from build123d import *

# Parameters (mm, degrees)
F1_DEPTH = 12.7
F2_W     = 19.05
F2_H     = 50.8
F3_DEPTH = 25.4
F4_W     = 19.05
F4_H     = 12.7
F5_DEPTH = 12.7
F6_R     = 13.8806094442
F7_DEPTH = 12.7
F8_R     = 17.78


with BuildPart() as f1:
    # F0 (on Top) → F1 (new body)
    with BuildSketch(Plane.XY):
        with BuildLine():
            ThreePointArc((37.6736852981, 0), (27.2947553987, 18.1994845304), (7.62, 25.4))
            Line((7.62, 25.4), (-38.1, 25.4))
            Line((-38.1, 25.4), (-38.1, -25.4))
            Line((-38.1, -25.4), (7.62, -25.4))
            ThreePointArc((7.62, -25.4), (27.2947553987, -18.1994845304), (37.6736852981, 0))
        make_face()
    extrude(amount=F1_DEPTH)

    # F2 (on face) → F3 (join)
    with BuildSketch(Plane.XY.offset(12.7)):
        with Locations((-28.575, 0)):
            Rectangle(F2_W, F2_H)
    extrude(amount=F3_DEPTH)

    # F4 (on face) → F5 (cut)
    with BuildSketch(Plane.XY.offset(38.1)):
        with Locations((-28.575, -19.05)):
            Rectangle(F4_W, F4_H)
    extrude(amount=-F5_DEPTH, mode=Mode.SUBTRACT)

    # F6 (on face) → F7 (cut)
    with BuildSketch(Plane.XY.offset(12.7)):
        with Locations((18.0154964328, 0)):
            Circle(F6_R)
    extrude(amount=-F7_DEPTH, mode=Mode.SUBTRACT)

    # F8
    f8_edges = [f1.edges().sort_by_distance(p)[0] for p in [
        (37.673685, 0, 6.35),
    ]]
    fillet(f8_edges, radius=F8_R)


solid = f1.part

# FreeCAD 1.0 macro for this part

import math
import FreeCAD as App
import Part
import Sketcher
from FreeCAD import Vector
Q = App.Units.Quantity


def edges_at(feature, points):
    """Names of the edges that pass closest to the given points."""
    edges = feature.Shape.Edges
    near = lambda p: min(range(len(edges)), key=lambda i: edges[i].distToShape(Part.Vertex(*p))[0])
    return sorted({f"Edge{near(p) + 1}" for p in points})


def add_polygon(sketch, points):
    """Adds a closed chain of lines whose ends are joined by coincident constraints."""
    first, n = sketch.GeometryCount, len(points)
    for a, b in zip(points, points[1:] + points[:1]):
        sketch.addGeometry(Part.LineSegment(App.Vector(*a, 0), App.Vector(*b, 0)), False)
    for i in range(n):
        sketch.addConstraint(Sketcher.Constraint("Coincident", first + i, 2, first + (i + 1) % n, 1))

doc = App.newDocument("Part")
body = doc.addObject("PartDesign::Body", "Body")

# Sketch on XY plane
sketch1 = doc.addObject("Sketcher::SketchObject", "Sketch")
body.addObject(sketch1)
sketch1.AttachmentSupport = (doc.XY_Plane, [""])
sketch1.MapMode = "FlatFace"
sketch1.addGeometry([
    Part.ArcOfCircle(Part.Circle(Vector(8, -5, 0), Vector(0, 0, 1), 30), math.radians(10), math.radians(90)),  # 0
    Part.LineSegment(Vector(8, 25, 0), Vector(-38, 25, 0)),  # 1
    Part.LineSegment(Vector(-38, 25, 0), Vector(-38, -25, 0)),  # 2
    Part.LineSegment(Vector(-38, -25, 0), Vector(8, -25, 0)),  # 3
    Part.ArcOfCircle(Part.Circle(Vector(8, 5, 0), Vector(0, 0, 1), 30), math.radians(-90), math.radians(-10)),  # 4
], False)
sketch1.addConstraint([
    Sketcher.Constraint("Tangent", 0, 2, 1, 1),
    Sketcher.Constraint("Coincident", 1, 2, 2, 1),
    Sketcher.Constraint("Coincident", 2, 2, 3, 1),
    Sketcher.Constraint("Tangent", 3, 2, 4, 1),
    Sketcher.Constraint("Coincident", 4, 2, 0, 1),
    Sketcher.Constraint("Horizontal", 1),
    Sketcher.Constraint("Vertical", 2),
    Sketcher.Constraint("Horizontal", 3),
    Sketcher.Constraint("Equal", 0, 4),
    Sketcher.Constraint("Symmetric", 0, 3, 4, 3, -1),
    Sketcher.Constraint("Radius", 0, Q("1.2 in")),
    Sketcher.Constraint("DistanceY", 2, 2, 2, 1, Q("2 in")),
    Sketcher.Constraint("DistanceX", 1, 2, 1, 1, Q("1.8 in")),
    Sketcher.Constraint("DistanceX", -1, 1, 0, 3, Q("0.3 in")),
])
pad1 = doc.addObject("PartDesign::Pad", "Pad")
body.addObject(pad1)
pad1.Profile = sketch1
pad1.Length = Q("0.5 in")

# Sketch on XY plane
sketch2 = doc.addObject("Sketcher::SketchObject", "Sketch001")
body.addObject(sketch2)
sketch2.AttachmentSupport = (doc.XY_Plane, [""])
sketch2.MapMode = "FlatFace"
sketch2.AttachmentOffset = App.Placement(Vector(0, 0, 0.5 * 25.4), App.Rotation())
add_polygon(sketch2, [(-38, 25), (-38, -25), (-19, -25), (-19, 25)])  # lines 0-3
sketch2.addConstraint([
    Sketcher.Constraint("Vertical", 0),
    Sketcher.Constraint("Horizontal", 1),
    Sketcher.Constraint("Vertical", 2),
    Sketcher.Constraint("Horizontal", 3),
    Sketcher.Constraint("DistanceY", 0, 2, 0, 1, Q("2 in")),
    Sketcher.Constraint("DistanceY", 0, 2, -1, 1, Q("1 in")),
    Sketcher.Constraint("DistanceX", 1, 1, 1, 2, Q("0.75 in")),
    Sketcher.Constraint("DistanceX", 0, 2, -1, 1, Q("1.5 in")),
])
pad2 = doc.addObject("PartDesign::Pad", "Pad001")
body.addObject(pad2)
pad2.Profile = sketch2
pad2.Length = Q("1 in")

# Sketch on XY plane
sketch3 = doc.addObject("Sketcher::SketchObject", "Sketch002")
body.addObject(sketch3)
sketch3.AttachmentSupport = (doc.XY_Plane, [""])
sketch3.MapMode = "FlatFace"
sketch3.AttachmentOffset = App.Placement(Vector(0, 0, 1.5 * 25.4), App.Rotation())
add_polygon(sketch3, [(-38, -13), (-38, -25), (-19, -25), (-19, -13)])  # lines 0-3
sketch3.addConstraint([
    Sketcher.Constraint("Vertical", 0),
    Sketcher.Constraint("Horizontal", 1),
    Sketcher.Constraint("Vertical", 2),
    Sketcher.Constraint("Horizontal", 3),
    Sketcher.Constraint("DistanceY", 0, 2, 0, 1, Q("0.5 in")),
    Sketcher.Constraint("DistanceY", 0, 2, -1, 1, Q("1 in")),
    Sketcher.Constraint("DistanceX", 1, 1, 1, 2, Q("0.75 in")),
    Sketcher.Constraint("DistanceX", 0, 2, -1, 1, Q("1.5 in")),
])
pocket1 = doc.addObject("PartDesign::Pocket", "Pocket")
body.addObject(pocket1)
pocket1.Profile = sketch3
pocket1.Length = Q("0.5 in")

# Sketch on XY plane
sketch4 = doc.addObject("Sketcher::SketchObject", "Sketch003")
body.addObject(sketch4)
sketch4.AttachmentSupport = (doc.XY_Plane, [""])
sketch4.MapMode = "FlatFace"
sketch4.AttachmentOffset = App.Placement(Vector(0, 0, 0.5 * 25.4), App.Rotation())
sketch4.addGeometry(Part.Circle(Vector(18, 0, 0), Vector(0, 0, 1), 14), False)
sketch4.addConstraint([
    Sketcher.Constraint("PointOnObject", 0, 3, -1),
    Sketcher.Constraint("Diameter", 0, 27.761219),
    Sketcher.Constraint("DistanceX", -1, 1, 0, 3, 18.015496),
])
pocket2 = doc.addObject("PartDesign::Pocket", "Pocket001")
body.addObject(pocket2)
pocket2.Profile = sketch4
pocket2.Length = Q("0.5 in")
doc.recompute()

fillet = doc.addObject("PartDesign::Fillet", "Fillet")
body.addObject(fillet)
fillet.Base = (pocket2, edges_at(pocket2, [(37.674, 0, 6.35)]))
fillet.Radius = Q("0.7 in")

doc.recompute()
